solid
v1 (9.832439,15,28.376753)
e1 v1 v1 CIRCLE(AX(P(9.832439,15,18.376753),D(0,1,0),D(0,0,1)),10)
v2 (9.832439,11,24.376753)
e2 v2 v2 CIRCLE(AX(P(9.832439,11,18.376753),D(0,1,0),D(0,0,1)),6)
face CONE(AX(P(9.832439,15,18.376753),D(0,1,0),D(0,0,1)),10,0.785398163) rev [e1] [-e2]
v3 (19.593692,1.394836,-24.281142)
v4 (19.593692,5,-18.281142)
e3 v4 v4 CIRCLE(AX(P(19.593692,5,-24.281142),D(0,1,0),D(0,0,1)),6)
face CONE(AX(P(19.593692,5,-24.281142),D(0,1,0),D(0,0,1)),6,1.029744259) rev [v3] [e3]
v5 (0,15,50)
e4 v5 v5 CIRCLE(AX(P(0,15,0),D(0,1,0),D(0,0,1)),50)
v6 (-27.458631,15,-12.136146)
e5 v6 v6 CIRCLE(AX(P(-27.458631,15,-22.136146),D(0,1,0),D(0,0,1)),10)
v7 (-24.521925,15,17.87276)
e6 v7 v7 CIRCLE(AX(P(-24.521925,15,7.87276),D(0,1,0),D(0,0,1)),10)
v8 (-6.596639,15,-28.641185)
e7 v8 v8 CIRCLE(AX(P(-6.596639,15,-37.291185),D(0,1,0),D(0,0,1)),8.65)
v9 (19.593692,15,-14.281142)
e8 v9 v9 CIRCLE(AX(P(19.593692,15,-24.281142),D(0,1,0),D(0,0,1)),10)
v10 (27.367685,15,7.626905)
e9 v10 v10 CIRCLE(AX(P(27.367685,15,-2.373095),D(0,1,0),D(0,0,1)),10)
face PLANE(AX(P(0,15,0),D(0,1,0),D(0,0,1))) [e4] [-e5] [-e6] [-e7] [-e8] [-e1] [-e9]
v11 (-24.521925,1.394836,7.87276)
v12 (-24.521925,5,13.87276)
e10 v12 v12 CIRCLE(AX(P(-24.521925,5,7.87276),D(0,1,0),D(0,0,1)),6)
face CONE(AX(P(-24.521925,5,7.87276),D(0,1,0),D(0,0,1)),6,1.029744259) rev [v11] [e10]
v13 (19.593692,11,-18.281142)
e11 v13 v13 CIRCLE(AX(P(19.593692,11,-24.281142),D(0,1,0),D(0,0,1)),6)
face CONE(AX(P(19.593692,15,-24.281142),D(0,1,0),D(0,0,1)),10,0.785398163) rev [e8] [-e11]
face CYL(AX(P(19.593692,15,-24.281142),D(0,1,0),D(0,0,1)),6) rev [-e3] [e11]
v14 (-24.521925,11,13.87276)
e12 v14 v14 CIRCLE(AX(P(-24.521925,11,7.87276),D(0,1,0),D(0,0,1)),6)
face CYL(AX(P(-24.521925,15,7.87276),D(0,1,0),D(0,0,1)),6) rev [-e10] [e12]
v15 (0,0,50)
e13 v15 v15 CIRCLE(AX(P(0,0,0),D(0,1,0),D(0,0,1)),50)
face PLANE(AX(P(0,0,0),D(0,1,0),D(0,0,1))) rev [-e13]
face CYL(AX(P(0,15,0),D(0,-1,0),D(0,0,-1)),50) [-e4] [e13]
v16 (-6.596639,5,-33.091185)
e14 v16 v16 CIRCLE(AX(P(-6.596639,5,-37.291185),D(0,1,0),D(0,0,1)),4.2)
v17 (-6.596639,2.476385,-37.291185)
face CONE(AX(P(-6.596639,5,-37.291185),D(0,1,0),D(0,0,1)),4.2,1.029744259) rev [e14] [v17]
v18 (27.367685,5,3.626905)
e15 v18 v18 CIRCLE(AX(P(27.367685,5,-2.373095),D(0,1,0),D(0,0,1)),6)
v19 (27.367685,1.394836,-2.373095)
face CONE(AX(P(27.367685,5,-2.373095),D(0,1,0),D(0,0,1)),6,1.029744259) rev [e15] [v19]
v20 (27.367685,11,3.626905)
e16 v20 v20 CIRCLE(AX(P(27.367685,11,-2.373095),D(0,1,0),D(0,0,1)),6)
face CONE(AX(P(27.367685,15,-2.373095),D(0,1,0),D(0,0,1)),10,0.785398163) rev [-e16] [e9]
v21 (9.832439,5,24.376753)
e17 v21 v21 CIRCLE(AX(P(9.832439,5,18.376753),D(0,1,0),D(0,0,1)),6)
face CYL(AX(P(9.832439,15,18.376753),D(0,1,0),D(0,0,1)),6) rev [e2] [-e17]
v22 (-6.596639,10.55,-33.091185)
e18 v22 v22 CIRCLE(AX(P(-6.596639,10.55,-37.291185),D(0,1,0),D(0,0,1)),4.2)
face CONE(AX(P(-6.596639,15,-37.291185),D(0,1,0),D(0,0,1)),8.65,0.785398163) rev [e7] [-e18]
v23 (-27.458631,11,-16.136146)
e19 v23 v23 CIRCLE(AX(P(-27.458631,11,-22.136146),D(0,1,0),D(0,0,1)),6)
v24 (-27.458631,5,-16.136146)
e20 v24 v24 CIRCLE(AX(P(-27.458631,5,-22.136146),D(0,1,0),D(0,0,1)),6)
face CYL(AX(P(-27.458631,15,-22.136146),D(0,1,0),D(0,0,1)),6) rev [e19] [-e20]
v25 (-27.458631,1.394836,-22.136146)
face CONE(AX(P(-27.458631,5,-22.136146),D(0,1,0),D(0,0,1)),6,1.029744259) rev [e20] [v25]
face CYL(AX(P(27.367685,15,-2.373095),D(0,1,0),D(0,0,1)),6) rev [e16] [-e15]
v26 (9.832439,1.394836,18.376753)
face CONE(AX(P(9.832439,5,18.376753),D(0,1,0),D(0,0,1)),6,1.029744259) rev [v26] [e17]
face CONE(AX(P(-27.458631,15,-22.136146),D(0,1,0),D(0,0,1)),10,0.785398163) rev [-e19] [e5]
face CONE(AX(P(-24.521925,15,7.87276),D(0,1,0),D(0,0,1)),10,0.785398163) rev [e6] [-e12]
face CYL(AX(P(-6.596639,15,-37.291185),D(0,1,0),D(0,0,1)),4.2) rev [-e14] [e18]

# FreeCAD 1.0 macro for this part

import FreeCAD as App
import Part
import Sketcher
from FreeCAD import Vector
Q = App.Units.Quantity

doc = App.newDocument("Part")
body = doc.addObject("PartDesign::Body", "Body")

# Sketch on XZ plane
sketch1 = body.newObject("Sketcher::SketchObject", "Sketch")
sketch1.AttachmentSupport = (doc.getObject("XZ_Plane"), [""])
sketch1.MapMode = "FlatFace"
sketch1.addGeometry(Part.Circle(Vector(0, 0, 0), Vector(0, 0, 1), 50), False)
sketch1.addConstraint(Sketcher.Constraint("Coincident", 0, 3, -1, 1))
sketch1.addConstraint(Sketcher.Constraint("Diameter", 0, Q("100 mm")))
pad1 = body.newObject("PartDesign::Pad", "Pad")
pad1.Profile = sketch1
pad1.Length = 15
pad1.Reversed = True

# Sketch on XZ plane
sketch2 = body.newObject("Sketcher::SketchObject", "Sketch001")
sketch2.AttachmentSupport = (doc.getObject("XZ_Plane"), [""])
sketch2.MapMode = "FlatFace"
sketch2.AttachmentOffset = App.Placement(Vector(0, 0, -15), App.Rotation())
sketch2.addGeometry(Part.Circle(Vector(-27.458631, -22.136146, 0), Vector(0, 0, 1), 6), False)
sketch2.addGeometry(Part.Circle(Vector(19.593692, -24.281142, 0), Vector(0, 0, 1), 6), False)
sketch2.addGeometry(Part.Circle(Vector(-24.521925, 7.87276, 0), Vector(0, 0, 1), 6), False)
sketch2.addGeometry(Part.Circle(Vector(9.832439, 18.376753, 0), Vector(0, 0, 1), 6), False)
sketch2.addGeometry(Part.Circle(Vector(27.367685, -2.373095, 0), Vector(0, 0, 1), 6), False)
sketch2.addConstraint(Sketcher.Constraint("Equal", 0, 1))
sketch2.addConstraint(Sketcher.Constraint("Equal", 1, 2))
sketch2.addConstraint(Sketcher.Constraint("Equal", 2, 3))
sketch2.addConstraint(Sketcher.Constraint("Equal", 3, 4))
sketch2.addConstraint(Sketcher.Constraint("Diameter", 0, Q("12 mm")))
sketch2.addConstraint(Sketcher.Constraint("DistanceY", 1, 3, 2, 3, Q("32.153902 mm")))
sketch2.addConstraint(Sketcher.Constraint("DistanceY", 0, 3, 3, 3, Q("40.5129 mm")))
sketch2.addConstraint(Sketcher.Constraint("DistanceX", 0, 3, -1, 1, Q("27.458631 mm")))
sketch2.addConstraint(Sketcher.Constraint("DistanceX", -1, 1, 1, 3, Q("19.593692 mm")))
sketch2.addConstraint(Sketcher.Constraint("DistanceY", 1, 3, -1, 1, Q("24.281142 mm")))
sketch2.addConstraint(Sketcher.Constraint("DistanceX", -1, 1, 3, 3, Q("9.832439 mm")))
sketch2.addConstraint(Sketcher.Constraint("DistanceY", 4, 3, 3, 3, Q("20.749848 mm")))
sketch2.addConstraint(Sketcher.Constraint("DistanceX", 2, 3, 4, 3, Q("51.88961 mm")))
sketch2.addConstraint(Sketcher.Constraint("DistanceY", 0, 3, -1, 1, Q("22.136146 mm")))
sketch2.addConstraint(Sketcher.Constraint("DistanceX", 2, 3, -1, 1, Q("24.521925 mm")))
doc.recompute()
hole = body.newObject("PartDesign::Hole", "Hole")
hole.Profile = sketch2
hole.ThreadType = "None"
hole.Diameter = 12
hole.DepthType = "Dimension"
hole.Depth = 10
hole.DrillPoint = "Angled"
hole.DrillPointAngle = 118
hole.HoleCutType = "Countersink"
hole.HoleCutDiameter = 20
hole.HoleCutCountersinkAngle = 90
hole.Reversed = True

# Sketch on XZ plane
sketch3 = body.newObject("Sketcher::SketchObject", "Sketch002")
sketch3.AttachmentSupport = (doc.getObject("XZ_Plane"), [""])
sketch3.MapMode = "FlatFace"
sketch3.AttachmentOffset = App.Placement(Vector(0, 0, -15), App.Rotation())
sketch3.addGeometry(Part.Circle(Vector(-6.596639, -37.291185, 0), Vector(0, 0, 1), 4.2), False)
sketch3.addConstraint(Sketcher.Constraint("Diameter", 0, Q("8.4 mm")))
sketch3.addConstraint(Sketcher.Constraint("DistanceX", 0, 3, -1, 1, Q("6.596639 mm")))
sketch3.addConstraint(Sketcher.Constraint("DistanceY", 0, 3, -1, 1, Q("37.291185 mm")))
doc.recompute()
hole2 = body.newObject("PartDesign::Hole", "Hole001")
hole2.Profile = sketch3
hole2.ThreadType = "None"
hole2.Diameter = 8.4
hole2.DepthType = "Dimension"
hole2.Depth = 10
hole2.DrillPoint = "Angled"
hole2.DrillPointAngle = 118
hole2.HoleCutType = "Countersink"
hole2.HoleCutDiameter = 17.3
hole2.HoleCutCountersinkAngle = 90
hole2.Reversed = True

doc.recompute()
